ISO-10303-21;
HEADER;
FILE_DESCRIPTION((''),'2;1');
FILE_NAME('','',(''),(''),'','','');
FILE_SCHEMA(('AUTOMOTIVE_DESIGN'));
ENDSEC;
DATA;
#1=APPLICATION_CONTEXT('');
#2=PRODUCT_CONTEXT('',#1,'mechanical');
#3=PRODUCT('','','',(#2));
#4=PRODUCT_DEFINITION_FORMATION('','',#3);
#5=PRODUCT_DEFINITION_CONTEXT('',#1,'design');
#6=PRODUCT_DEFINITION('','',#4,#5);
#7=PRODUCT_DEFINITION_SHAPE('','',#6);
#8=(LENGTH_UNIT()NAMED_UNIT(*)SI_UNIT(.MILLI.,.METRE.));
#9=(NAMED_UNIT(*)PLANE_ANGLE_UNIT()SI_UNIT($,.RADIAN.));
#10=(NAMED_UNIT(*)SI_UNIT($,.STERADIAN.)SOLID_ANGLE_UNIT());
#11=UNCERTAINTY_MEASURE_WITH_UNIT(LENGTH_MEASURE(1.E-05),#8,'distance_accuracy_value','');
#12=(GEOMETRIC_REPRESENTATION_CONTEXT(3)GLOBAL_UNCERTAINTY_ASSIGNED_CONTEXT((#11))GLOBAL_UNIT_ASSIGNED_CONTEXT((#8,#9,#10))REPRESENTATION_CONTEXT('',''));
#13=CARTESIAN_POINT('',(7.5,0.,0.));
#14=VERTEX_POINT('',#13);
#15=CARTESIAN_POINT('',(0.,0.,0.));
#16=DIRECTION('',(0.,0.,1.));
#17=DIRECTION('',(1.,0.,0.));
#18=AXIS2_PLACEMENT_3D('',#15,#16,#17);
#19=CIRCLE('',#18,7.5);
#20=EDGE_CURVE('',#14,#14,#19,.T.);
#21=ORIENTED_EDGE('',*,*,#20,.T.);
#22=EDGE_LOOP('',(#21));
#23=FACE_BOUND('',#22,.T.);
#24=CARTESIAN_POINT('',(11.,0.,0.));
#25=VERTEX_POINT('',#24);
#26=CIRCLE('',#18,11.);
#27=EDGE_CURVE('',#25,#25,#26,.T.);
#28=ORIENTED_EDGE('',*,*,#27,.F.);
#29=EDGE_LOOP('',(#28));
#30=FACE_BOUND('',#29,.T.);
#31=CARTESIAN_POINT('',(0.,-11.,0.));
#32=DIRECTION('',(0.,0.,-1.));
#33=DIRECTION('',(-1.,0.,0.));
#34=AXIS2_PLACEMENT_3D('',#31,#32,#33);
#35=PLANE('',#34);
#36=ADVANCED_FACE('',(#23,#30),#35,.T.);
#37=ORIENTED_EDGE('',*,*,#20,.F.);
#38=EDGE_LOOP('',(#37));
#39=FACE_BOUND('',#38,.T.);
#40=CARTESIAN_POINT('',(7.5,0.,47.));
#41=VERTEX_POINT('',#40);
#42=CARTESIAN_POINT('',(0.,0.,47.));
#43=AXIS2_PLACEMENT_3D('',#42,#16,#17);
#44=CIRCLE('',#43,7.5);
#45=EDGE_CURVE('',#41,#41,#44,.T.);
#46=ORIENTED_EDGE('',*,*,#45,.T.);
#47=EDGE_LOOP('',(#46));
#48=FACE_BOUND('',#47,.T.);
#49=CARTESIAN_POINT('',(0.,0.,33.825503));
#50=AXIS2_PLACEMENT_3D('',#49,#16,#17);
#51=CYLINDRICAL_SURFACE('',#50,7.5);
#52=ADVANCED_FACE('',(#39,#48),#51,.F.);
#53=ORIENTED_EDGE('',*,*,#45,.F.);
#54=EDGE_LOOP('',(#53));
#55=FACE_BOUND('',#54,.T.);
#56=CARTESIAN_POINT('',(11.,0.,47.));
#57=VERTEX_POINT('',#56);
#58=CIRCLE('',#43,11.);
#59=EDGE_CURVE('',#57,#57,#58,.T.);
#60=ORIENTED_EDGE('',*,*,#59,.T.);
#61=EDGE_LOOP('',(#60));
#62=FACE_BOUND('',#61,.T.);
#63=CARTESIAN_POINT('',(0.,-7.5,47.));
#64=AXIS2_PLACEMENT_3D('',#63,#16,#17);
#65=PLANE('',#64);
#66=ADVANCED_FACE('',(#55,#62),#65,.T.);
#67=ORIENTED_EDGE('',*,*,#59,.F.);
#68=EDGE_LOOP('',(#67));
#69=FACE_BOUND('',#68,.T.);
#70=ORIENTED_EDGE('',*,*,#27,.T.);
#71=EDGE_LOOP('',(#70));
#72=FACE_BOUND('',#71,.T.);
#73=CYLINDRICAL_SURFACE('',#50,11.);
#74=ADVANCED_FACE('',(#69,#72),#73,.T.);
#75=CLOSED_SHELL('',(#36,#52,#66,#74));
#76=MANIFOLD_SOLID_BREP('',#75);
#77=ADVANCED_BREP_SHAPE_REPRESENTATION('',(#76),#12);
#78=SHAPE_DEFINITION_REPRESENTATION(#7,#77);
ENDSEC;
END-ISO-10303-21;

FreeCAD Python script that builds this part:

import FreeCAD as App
import Part
import Sketcher
from FreeCAD import Vector
Q = App.Units.Quantity


def add_polygon(sketch, points):
    """Adds a closed chain of lines whose ends are joined by coincident constraints."""
    first, n = sketch.GeometryCount, len(points)
    for a, b in zip(points, points[1:] + points[:1]):
        sketch.addGeometry(Part.LineSegment(App.Vector(*a, 0), App.Vector(*b, 0)), False)
    for i in range(n):
        sketch.addConstraint(Sketcher.Constraint("Coincident", first + i, 2, first + (i + 1) % n, 1))

doc = App.newDocument("Part")
body = doc.addObject("PartDesign::Body", "Body")

# Sketch on YZ plane
sketch1 = body.newObject("Sketcher::SketchObject", "Sketch")
sketch1.AttachmentSupport = (doc.getObject("YZ_Plane"), [""])
sketch1.MapMode = "FlatFace"
add_polygon(sketch1, [(-7.5, 47), (-11, 47), (-11, 0), (-7.5, 0)])  # lines 0-3
sketch1.addConstraint(Sketcher.Constraint("Horizontal", 0))
sketch1.addConstraint(Sketcher.Constraint("Vertical", 1))
sketch1.addConstraint(Sketcher.Constraint("Horizontal", 2))
sketch1.addConstraint(Sketcher.Constraint("Vertical", 3))
sketch1.addConstraint(Sketcher.Constraint("PointOnObject", 1, 2, -1))
sketch1.addConstraint(Sketcher.Constraint("DistanceY", 1, 2, 1, 1, Q("47 mm")))
sketch1.addConstraint(Sketcher.Constraint("DistanceX", 0, 2, 0, 1, Q("3.5 mm")))
sketch1.addConstraint(Sketcher.Constraint("DistanceX", 0, 2, -1, 1, Q("11 mm")))
revolution = body.newObject("PartDesign::Revolution", "Revolution")
revolution.Profile = sketch1
revolution.ReferenceAxis = (sketch1, ["V_Axis"])
revolution.Angle = 360

doc.recompute()
